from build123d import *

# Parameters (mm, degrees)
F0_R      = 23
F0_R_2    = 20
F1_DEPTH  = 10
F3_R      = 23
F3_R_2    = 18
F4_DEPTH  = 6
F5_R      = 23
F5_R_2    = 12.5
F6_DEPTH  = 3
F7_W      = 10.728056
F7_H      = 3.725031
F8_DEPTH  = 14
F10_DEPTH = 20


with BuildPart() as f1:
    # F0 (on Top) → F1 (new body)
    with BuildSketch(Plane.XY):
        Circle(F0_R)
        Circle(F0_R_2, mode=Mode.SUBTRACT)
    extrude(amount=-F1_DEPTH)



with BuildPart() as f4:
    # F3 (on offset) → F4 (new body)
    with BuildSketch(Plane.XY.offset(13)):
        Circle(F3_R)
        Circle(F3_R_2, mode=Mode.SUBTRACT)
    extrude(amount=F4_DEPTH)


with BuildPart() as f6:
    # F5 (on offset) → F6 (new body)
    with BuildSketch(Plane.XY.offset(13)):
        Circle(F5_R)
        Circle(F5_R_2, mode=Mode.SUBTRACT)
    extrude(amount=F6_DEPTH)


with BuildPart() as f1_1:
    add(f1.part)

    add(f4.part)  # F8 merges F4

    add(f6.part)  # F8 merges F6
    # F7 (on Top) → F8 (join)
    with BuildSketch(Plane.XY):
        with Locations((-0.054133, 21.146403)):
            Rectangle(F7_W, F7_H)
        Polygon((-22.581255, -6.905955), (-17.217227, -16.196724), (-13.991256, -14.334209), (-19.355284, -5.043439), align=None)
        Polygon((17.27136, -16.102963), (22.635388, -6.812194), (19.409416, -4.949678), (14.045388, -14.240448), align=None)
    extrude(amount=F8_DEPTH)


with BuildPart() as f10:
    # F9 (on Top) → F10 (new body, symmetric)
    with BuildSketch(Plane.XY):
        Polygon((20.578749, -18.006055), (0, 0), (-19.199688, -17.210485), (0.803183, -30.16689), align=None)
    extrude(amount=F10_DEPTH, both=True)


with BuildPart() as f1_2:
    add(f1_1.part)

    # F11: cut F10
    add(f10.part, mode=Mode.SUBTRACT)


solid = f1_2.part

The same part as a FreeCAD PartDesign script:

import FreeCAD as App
import Part
import Sketcher
Q = App.Units.Quantity

doc = App.newDocument("Part")
body = doc.addObject("PartDesign::Body", "Body")

sketch1 = body.newObject("Sketcher::SketchObject", "Sketch")
sketch1.AttachmentSupport = (doc.getObject("XY_Plane"), [""])
sketch1.MapMode = "FlatFace"
sketch1.addGeometry([
    Part.Circle(App.Vector(0, 0, 0), App.Vector(0, 0, 1), 23),
    Part.Circle(App.Vector(0, 0, 0), App.Vector(0, 0, 1), 20),
], False)
sketch1.addConstraint([
    Sketcher.Constraint("Coincident", 0, 3, -1, 1),
    Sketcher.Constraint("Coincident", 1, 3, -1, 1),
    Sketcher.Constraint("Diameter", 0, Q("46 mm")),
    Sketcher.Constraint("Diameter", 1, Q("40 mm")),
])
pad1 = body.newObject("PartDesign::Pad", "Pad")
pad1.Profile = sketch1
pad1.Length = 10
pad1.Reversed = True
body2 = doc.addObject("PartDesign::Body", "Body001")

sketch2 = body2.newObject("Sketcher::SketchObject", "Sketch001")
sketch2.AttachmentSupport = (doc.getObject("XY_Plane001"), [""])
sketch2.MapMode = "FlatFace"
sketch2.AttachmentOffset = App.Placement(App.Vector(0, 0, 13), App.Rotation())
sketch2.addGeometry([
    Part.Circle(App.Vector(0, 0, 0), App.Vector(0, 0, 1), 23),
    Part.Circle(App.Vector(0, 0, 0), App.Vector(0, 0, 1), 18),
], False)
sketch2.addConstraint([
    Sketcher.Constraint("Coincident", 0, 3, -1, 1),
    Sketcher.Constraint("Coincident", 1, 3, -1, 1),
    Sketcher.Constraint("Diameter", 0, Q("46 mm")),
    Sketcher.Constraint("Diameter", 1, Q("36 mm")),
])
pad2 = body2.newObject("PartDesign::Pad", "Pad001")
pad2.Profile = sketch2
pad2.Length = 6
body3 = doc.addObject("PartDesign::Body", "Body002")

sketch3 = body3.newObject("Sketcher::SketchObject", "Sketch002")
sketch3.AttachmentSupport = (doc.getObject("XY_Plane002"), [""])
sketch3.MapMode = "FlatFace"
sketch3.AttachmentOffset = App.Placement(App.Vector(0, 0, 13), App.Rotation())
sketch3.addGeometry([
    Part.Circle(App.Vector(0, 0, 0), App.Vector(0, 0, 1), 23),
    Part.Circle(App.Vector(0, 0, 0), App.Vector(0, 0, 1), 12),
], False)
sketch3.addConstraint([
    Sketcher.Constraint("Coincident", 0, 3, -1, 1),
    Sketcher.Constraint("Coincident", 1, 3, -1, 1),
    Sketcher.Constraint("Diameter", 0, Q("46 mm")),
    Sketcher.Constraint("Diameter", 1, Q("25 mm")),
])
pad3 = body3.newObject("PartDesign::Pad", "Pad002")
pad3.Profile = sketch3
pad3.Length = 3
body.AllowCompound = True
doc.recompute()

boolean = body.newObject("PartDesign::Boolean", "Boolean")
boolean.Type = "Fuse"
boolean.addObjects([body2])
doc.recompute()

boolean2 = body.newObject("PartDesign::Boolean", "Boolean001")
boolean2.Type = "Fuse"
boolean2.addObjects([body3])

sketch4 = body.newObject("Sketcher::SketchObject", "Sketch003")
sketch4.AttachmentSupport = (doc.getObject("XY_Plane"), [""])
sketch4.MapMode = "FlatFace"
sketch4.addGeometry([
    Part.LineSegment(App.Vector(-5.4, 23, 0), App.Vector(-5.4, 19.3, 0)),
    Part.LineSegment(App.Vector(-5.4, 19.3, 0), App.Vector(5.3, 19.3, 0)),
    Part.LineSegment(App.Vector(5.3, 19.3, 0), App.Vector(5.3, 23, 0)),
    Part.LineSegment(App.Vector(5.3, 23, 0), App.Vector(-5.4, 23, 0)),
    Part.LineSegment(App.Vector(-22.6, -6.9, 0), App.Vector(-17.2, -16.2, 0)),
    Part.LineSegment(App.Vector(-17.2, -16.2, 0), App.Vector(-14, -14.3, 0)),
    Part.LineSegment(App.Vector(-14, -14.3, 0), App.Vector(-19.4, -5, 0)),
    Part.LineSegment(App.Vector(-19.4, -5, 0), App.Vector(-22.6, -6.9, 0)),
    Part.LineSegment(App.Vector(17.3, -16.1, 0), App.Vector(22.6, -6.8, 0)),
    Part.LineSegment(App.Vector(22.6, -6.8, 0), App.Vector(19.4, -4.9, 0)),
    Part.LineSegment(App.Vector(19.4, -4.9, 0), App.Vector(14, -14.2, 0)),
    Part.LineSegment(App.Vector(14, -14.2, 0), App.Vector(17.3, -16.1, 0)),
], False)
sketch4.addConstraint([
    Sketcher.Constraint("Coincident", 0, 2, 1, 1),
    Sketcher.Constraint("Coincident", 1, 2, 2, 1),
    Sketcher.Constraint("Coincident", 2, 2, 3, 1),
    Sketcher.Constraint("Coincident", 3, 2, 0, 1),
    Sketcher.Constraint("Coincident", 4, 2, 5, 1),
    Sketcher.Constraint("Coincident", 5, 2, 6, 1),
    Sketcher.Constraint("Coincident", 6, 2, 7, 1),
    Sketcher.Constraint("Coincident", 7, 2, 4, 1),
    Sketcher.Constraint("Coincident", 8, 2, 9, 1),
    Sketcher.Constraint("Coincident", 9, 2, 10, 1),
    Sketcher.Constraint("Coincident", 10, 2, 11, 1),
    Sketcher.Constraint("Coincident", 11, 2, 8, 1),
    Sketcher.Constraint("Vertical", 0),
    Sketcher.Constraint("Horizontal", 1),
    Sketcher.Constraint("Vertical", 2),
    Sketcher.Constraint("Horizontal", 3),
    Sketcher.Constraint("Perpendicular", 4, 5),
    Sketcher.Constraint("Perpendicular", 5, 6),
    Sketcher.Constraint("Perpendicular", 6, 7),
    Sketcher.Constraint("Perpendicular", 8, 9),
    Sketcher.Constraint("Perpendicular", 9, 10),
    Sketcher.Constraint("Perpendicular", 10, 11),
    Sketcher.Constraint("Equal", 6, 8),
    Sketcher.Constraint("Equal", 7, 9),
    Sketcher.Constraint("Angle", 4, Q("-60 deg")),
    Sketcher.Constraint("Angle", 8, Q("60 deg")),
    Sketcher.Constraint("DistanceX", 7, 2, 5, 2, Q("8.589999 mm")),
    Sketcher.Constraint("DistanceY", 0, 2, 0, 1, Q("3.725031 mm")),
    Sketcher.Constraint("Distance", 5, Q("3.72503 mm")),
    Sketcher.Constraint("DistanceX", 1, 1, 1, 2, Q("10.728056 mm")),
    Sketcher.Constraint("DistanceX", 0, 2, -1, 1, Q("5.418161 mm")),
    Sketcher.Constraint("DistanceY", -1, 1, 2, 2, Q("23.008919 mm")),
    Sketcher.Constraint("DistanceY", 5, 2, -1, 1, Q("14.334209 mm")),
    Sketcher.Constraint("DistanceX", -1, 1, 10, 2, Q("14.045388 mm")),
    Sketcher.Constraint("DistanceY", 10, 2, -1, 1, Q("14.240448 mm")),
    Sketcher.Constraint("DistanceX", 5, 2, 1, 2, Q("19.301151 mm")),
])
pad4 = body.newObject("PartDesign::Pad", "Pad003")
pad4.Profile = sketch4
pad4.Length = 14
body4 = doc.addObject("PartDesign::Body", "Body003")

sketch5 = body4.newObject("Sketcher::SketchObject", "Sketch004")
sketch5.AttachmentSupport = (doc.getObject("XY_Plane003"), [""])
sketch5.MapMode = "FlatFace"
sketch5.addGeometry([
    Part.LineSegment(App.Vector(21, -18, 0), App.Vector(0, 0, 0)),
    Part.LineSegment(App.Vector(0, 0, 0), App.Vector(-19, -17, 0)),
    Part.LineSegment(App.Vector(-19, -17, 0), App.Vector(1, -30, 0)),
    Part.LineSegment(App.Vector(1, -30, 0), App.Vector(21, -18, 0)),
], False)
sketch5.addConstraint([
    Sketcher.Constraint("Coincident", 0, 2, 1, 1),
    Sketcher.Constraint("Coincident", 1, 2, 2, 1),
    Sketcher.Constraint("Coincident", 2, 2, 3, 1),
    Sketcher.Constraint("Coincident", 3, 2, 0, 1),
    Sketcher.Constraint("Coincident", 0, 2, -1, 1),
    Sketcher.Constraint("Distance", 2, Q("23.8324 mm")),
    Sketcher.Constraint("Distance", 3, Q("23.215489 mm")),
    Sketcher.Constraint("DistanceY", 2, 2, -1, 1, Q("30.16689 mm")),
    Sketcher.Constraint("DistanceX", -1, 1, 3, 2, Q("20.578749 mm")),
    Sketcher.Constraint("DistanceX", 1, 2, 2, 2, Q("20.002871 mm")),
    Sketcher.Constraint("DistanceY", 3, 2, 1, 2, Q("0.79557 mm")),
])
pad5 = body4.newObject("PartDesign::Pad", "Pad004")
pad5.Profile = sketch5
pad5.Length = 40
pad5.Midplane = True
doc.recompute()

boolean3 = body.newObject("PartDesign::Boolean", "Boolean002")
boolean3.Type = "Cut"
boolean3.addObjects([body4])

doc.recompute()
